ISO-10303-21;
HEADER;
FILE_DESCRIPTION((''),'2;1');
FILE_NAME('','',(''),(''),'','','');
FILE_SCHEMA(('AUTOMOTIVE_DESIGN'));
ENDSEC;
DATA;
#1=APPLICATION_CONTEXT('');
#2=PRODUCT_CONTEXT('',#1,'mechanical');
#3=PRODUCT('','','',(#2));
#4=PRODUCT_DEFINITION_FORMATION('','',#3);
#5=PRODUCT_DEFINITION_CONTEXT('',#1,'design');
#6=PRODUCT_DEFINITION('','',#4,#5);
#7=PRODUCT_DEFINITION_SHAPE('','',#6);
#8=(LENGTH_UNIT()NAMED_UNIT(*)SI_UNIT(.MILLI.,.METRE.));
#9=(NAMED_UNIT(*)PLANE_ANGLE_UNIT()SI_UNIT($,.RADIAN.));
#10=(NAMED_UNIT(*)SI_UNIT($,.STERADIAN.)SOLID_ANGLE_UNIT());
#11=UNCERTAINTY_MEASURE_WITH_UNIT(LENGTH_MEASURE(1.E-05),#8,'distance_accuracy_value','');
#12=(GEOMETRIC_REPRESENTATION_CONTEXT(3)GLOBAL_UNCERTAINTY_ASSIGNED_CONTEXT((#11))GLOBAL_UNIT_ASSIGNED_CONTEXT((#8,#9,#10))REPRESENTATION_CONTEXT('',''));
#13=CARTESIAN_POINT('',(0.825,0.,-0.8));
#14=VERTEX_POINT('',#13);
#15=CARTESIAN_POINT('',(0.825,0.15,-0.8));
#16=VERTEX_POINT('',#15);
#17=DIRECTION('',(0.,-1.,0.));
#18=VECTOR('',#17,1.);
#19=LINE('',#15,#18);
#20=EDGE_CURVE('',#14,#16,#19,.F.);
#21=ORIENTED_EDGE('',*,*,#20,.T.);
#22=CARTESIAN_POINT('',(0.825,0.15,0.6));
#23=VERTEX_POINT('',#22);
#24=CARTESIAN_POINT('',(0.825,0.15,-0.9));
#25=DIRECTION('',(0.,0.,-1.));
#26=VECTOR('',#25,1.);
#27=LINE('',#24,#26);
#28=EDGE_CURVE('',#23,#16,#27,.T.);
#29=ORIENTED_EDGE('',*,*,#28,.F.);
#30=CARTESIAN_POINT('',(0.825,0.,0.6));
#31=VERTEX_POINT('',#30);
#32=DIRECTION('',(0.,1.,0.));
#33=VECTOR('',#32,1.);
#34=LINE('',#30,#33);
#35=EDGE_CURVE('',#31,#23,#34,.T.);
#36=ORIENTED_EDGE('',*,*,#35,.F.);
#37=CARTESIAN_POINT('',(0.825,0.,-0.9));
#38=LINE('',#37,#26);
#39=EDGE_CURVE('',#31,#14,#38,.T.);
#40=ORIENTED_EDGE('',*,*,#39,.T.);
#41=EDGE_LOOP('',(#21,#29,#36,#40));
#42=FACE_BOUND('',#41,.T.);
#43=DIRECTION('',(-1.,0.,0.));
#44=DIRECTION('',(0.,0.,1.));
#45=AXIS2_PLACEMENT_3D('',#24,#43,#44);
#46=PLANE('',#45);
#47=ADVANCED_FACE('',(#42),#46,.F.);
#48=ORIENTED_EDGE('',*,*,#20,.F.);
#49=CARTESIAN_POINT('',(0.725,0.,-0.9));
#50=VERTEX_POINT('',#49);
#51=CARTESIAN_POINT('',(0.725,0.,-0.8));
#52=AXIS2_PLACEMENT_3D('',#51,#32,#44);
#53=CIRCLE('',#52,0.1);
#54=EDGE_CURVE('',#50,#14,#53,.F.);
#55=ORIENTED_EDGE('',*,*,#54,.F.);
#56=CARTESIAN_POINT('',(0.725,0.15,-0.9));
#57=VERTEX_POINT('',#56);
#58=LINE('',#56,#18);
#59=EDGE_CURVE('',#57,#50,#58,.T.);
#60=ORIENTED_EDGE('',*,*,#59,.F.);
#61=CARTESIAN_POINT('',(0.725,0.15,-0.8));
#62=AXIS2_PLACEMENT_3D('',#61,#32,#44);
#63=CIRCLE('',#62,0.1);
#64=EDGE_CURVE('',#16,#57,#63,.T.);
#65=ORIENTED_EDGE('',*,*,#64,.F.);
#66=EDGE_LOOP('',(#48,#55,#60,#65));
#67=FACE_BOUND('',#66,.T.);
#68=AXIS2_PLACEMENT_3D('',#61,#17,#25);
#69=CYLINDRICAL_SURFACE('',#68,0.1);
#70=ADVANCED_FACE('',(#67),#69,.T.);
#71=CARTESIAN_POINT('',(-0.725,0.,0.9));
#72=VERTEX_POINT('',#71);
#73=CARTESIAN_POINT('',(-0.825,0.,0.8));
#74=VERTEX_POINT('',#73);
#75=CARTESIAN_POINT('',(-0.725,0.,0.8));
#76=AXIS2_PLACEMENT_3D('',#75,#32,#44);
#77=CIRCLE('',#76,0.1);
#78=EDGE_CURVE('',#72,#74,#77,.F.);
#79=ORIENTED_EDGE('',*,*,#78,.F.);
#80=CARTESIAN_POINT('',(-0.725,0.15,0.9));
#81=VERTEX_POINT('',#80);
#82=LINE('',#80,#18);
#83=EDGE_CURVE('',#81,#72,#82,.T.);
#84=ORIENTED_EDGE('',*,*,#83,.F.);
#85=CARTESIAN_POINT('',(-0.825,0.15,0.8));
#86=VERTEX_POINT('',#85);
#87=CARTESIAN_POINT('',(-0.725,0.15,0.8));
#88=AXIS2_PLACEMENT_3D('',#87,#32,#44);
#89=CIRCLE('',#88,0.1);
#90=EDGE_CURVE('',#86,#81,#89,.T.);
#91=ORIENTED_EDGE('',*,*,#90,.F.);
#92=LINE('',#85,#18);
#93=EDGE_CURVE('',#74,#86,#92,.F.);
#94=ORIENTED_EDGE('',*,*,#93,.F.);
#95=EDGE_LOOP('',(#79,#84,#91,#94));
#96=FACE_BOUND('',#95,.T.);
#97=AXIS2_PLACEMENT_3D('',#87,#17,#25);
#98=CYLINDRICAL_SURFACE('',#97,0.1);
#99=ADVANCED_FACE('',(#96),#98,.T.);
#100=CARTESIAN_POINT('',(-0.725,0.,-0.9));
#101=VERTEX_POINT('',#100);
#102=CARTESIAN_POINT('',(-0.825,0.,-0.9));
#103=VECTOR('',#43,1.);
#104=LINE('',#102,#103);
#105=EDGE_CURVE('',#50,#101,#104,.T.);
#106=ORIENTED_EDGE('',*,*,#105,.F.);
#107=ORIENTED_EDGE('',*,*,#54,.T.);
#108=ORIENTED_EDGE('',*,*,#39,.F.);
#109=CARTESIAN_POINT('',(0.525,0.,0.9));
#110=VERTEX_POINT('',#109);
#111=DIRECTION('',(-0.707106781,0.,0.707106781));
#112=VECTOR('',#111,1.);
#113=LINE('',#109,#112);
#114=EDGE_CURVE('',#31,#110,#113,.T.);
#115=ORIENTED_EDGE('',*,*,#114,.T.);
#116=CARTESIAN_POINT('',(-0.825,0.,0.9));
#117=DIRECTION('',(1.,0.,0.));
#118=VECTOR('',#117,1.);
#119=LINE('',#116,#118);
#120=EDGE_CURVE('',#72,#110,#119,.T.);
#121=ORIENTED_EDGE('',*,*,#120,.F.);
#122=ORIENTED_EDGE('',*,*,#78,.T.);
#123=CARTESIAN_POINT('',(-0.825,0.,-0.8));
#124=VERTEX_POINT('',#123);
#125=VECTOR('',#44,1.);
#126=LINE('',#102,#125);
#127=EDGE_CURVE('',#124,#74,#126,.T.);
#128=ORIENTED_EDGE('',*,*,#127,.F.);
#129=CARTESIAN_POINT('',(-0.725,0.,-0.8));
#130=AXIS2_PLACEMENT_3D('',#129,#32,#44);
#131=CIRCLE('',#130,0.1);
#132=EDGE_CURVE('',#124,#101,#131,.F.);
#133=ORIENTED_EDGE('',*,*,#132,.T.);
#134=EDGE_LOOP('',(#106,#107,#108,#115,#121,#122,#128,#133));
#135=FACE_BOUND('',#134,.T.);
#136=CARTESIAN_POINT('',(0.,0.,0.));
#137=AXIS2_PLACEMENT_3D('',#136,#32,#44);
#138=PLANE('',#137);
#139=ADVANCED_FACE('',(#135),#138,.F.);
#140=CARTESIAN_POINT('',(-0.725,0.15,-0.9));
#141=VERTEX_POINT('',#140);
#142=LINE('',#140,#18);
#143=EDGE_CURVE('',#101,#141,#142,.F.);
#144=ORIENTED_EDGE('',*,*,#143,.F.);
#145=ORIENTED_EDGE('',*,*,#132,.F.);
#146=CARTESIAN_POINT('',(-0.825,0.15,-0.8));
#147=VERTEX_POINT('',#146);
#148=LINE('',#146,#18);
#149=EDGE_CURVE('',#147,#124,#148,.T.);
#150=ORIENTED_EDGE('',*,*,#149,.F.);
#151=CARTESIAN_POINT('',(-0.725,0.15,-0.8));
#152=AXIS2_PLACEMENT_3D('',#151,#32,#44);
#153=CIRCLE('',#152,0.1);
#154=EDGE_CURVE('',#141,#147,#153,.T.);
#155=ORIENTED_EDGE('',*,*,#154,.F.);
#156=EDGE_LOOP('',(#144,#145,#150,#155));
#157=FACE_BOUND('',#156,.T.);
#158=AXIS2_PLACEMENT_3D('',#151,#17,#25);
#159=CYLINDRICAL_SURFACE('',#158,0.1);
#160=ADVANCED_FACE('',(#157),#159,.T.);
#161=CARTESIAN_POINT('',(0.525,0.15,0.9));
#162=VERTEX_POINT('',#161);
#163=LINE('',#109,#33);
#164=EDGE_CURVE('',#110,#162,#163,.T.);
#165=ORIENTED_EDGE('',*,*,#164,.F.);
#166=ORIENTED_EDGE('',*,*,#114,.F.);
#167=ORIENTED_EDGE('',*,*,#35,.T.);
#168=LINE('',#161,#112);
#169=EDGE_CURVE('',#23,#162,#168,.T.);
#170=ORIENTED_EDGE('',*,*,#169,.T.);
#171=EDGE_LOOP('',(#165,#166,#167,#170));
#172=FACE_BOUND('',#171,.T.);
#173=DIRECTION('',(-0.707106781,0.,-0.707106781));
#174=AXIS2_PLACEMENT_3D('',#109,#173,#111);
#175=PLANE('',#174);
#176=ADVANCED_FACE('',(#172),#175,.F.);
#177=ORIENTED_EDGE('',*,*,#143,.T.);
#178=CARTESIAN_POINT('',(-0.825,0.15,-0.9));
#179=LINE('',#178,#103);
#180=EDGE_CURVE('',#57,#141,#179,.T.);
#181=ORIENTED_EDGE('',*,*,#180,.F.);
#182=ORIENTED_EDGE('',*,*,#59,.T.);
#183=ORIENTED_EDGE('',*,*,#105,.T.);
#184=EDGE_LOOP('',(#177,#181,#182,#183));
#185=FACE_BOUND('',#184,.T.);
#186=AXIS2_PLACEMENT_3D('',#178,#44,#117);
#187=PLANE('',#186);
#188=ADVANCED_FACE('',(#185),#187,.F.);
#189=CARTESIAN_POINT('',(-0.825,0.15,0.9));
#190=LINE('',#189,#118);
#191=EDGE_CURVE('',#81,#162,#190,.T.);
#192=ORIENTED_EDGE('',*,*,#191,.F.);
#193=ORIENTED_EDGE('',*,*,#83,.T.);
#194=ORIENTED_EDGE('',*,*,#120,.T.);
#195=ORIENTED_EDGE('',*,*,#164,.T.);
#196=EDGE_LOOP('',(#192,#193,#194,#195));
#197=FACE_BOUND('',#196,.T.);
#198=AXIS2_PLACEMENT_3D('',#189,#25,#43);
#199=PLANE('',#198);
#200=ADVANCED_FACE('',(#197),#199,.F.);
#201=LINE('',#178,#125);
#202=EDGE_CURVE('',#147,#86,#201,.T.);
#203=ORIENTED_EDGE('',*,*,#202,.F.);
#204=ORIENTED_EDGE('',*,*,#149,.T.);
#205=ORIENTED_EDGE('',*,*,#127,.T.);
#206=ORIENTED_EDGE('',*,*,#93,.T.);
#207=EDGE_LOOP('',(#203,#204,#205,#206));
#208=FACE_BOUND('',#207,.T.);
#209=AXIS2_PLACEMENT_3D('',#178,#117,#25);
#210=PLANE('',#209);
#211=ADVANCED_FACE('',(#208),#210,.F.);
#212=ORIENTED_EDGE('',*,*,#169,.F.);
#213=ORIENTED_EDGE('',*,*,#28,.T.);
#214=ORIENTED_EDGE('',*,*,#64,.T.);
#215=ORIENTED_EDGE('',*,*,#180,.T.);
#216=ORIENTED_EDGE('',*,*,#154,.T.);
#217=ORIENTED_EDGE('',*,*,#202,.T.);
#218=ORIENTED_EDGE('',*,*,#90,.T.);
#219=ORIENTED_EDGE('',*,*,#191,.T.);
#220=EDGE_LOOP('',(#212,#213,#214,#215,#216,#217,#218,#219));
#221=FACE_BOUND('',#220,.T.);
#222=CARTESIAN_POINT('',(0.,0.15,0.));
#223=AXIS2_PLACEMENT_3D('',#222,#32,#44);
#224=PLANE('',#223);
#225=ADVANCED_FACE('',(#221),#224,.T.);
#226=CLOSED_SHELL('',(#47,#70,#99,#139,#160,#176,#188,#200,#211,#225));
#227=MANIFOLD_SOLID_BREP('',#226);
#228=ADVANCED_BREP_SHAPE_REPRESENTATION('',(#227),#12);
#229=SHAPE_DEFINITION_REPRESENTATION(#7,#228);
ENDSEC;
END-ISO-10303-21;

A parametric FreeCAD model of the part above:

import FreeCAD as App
import Part
import Sketcher

V = App.Vector


def edges_at(feature, points):
    """Names of the edges that pass closest to the given points."""
    edges = feature.Shape.Edges
    near = lambda p: min(range(len(edges)), key=lambda i: edges[i].distToShape(Part.Vertex(*p))[0])
    return sorted({f"Edge{near(p) + 1}" for p in points})

doc = App.newDocument("Part")
body = doc.addObject("PartDesign::Body", "Body")

# Sketch on XZ plane
sketch1 = body.newObject("Sketcher::SketchObject", "Sketch")
sketch1.AttachmentSupport = (doc.getObject("XZ_Plane"), [""])
sketch1.MapMode = "FlatFace"
sketch1.addGeometry([
    Part.LineSegment(V(-0.8, -0.9, 0), V(-0.8, 0.9, 0)),
    Part.LineSegment(V(-0.8, 0.9, 0), V(0.8, 0.9, 0)),
    Part.LineSegment(V(0.8, 0.9, 0), V(0.8, -0.9, 0)),
    Part.LineSegment(V(0.8, -0.9, 0), V(-0.8, -0.9, 0)),
], False)
sketch1.addConstraint([
    Sketcher.Constraint("Coincident", 0, 2, 1, 1),
    Sketcher.Constraint("Coincident", 1, 2, 2, 1),
    Sketcher.Constraint("Coincident", 2, 2, 3, 1),
    Sketcher.Constraint("Coincident", 3, 2, 0, 1),
    Sketcher.Constraint("Vertical", 0),
    Sketcher.Constraint("Horizontal", 1),
    Sketcher.Constraint("Vertical", 2),
    Sketcher.Constraint("Horizontal", 3),
    Sketcher.Constraint("Symmetric", 0, 2, 2, 2, -1, 1),
    Sketcher.Constraint("DistanceY", 0, 1, 0, 2, 1.8),
    Sketcher.Constraint("DistanceX", 1, 1, 1, 2, 1.65),
])
pad1 = body.newObject("PartDesign::Pad", "Pad")
pad1.Profile = sketch1
pad1.Length = 0.15
pad1.Reversed = True

# Sketch on XZ plane
sketch2 = body.newObject("Sketcher::SketchObject", "Sketch001")
sketch2.AttachmentSupport = (doc.getObject("XZ_Plane"), [""])
sketch2.MapMode = "FlatFace"
sketch2.AttachmentOffset = App.Placement(V(0, 0, -0.15), App.Rotation())
sketch2.addGeometry([
    Part.LineSegment(V(0.82, 0.6, 0), V(0.53, 0.9, 0)),
    Part.LineSegment(V(0.53, 0.9, 0), V(0.82, 0.9, 0)),
    Part.LineSegment(V(0.82, 0.9, 0), V(0.82, 0.6, 0)),
], False)
sketch2.addConstraint([
    Sketcher.Constraint("Coincident", 0, 2, 1, 1),
    Sketcher.Constraint("Coincident", 1, 2, 2, 1),
    Sketcher.Constraint("Coincident", 2, 2, 0, 1),
    Sketcher.Constraint("Horizontal", 1),
    Sketcher.Constraint("Vertical", 2),
    Sketcher.Constraint("Equal", 1, 2),
    Sketcher.Constraint("DistanceX", 1, 1, 1, 2, 0.3),
    Sketcher.Constraint("DistanceY", -1, 1, 0, 2, 0.9),
    Sketcher.Constraint("DistanceX", -1, 1, 0, 2, 0.525),
])
pocket1 = body.newObject("PartDesign::Pocket", "Pocket")
pocket1.Profile = sketch2
pocket1.Type = "ThroughAll"
pocket1.Reversed = True
doc.recompute()

fillet = body.newObject("PartDesign::Fillet", "Fillet")
fillet.Base = (pocket1, edges_at(pocket1, [(-0.825, 0.075, 0.9), (-0.825, 0.075, -0.9), (0.825, 0.075, -0.9)]))
fillet.Radius = 0.1

doc.recompute()
